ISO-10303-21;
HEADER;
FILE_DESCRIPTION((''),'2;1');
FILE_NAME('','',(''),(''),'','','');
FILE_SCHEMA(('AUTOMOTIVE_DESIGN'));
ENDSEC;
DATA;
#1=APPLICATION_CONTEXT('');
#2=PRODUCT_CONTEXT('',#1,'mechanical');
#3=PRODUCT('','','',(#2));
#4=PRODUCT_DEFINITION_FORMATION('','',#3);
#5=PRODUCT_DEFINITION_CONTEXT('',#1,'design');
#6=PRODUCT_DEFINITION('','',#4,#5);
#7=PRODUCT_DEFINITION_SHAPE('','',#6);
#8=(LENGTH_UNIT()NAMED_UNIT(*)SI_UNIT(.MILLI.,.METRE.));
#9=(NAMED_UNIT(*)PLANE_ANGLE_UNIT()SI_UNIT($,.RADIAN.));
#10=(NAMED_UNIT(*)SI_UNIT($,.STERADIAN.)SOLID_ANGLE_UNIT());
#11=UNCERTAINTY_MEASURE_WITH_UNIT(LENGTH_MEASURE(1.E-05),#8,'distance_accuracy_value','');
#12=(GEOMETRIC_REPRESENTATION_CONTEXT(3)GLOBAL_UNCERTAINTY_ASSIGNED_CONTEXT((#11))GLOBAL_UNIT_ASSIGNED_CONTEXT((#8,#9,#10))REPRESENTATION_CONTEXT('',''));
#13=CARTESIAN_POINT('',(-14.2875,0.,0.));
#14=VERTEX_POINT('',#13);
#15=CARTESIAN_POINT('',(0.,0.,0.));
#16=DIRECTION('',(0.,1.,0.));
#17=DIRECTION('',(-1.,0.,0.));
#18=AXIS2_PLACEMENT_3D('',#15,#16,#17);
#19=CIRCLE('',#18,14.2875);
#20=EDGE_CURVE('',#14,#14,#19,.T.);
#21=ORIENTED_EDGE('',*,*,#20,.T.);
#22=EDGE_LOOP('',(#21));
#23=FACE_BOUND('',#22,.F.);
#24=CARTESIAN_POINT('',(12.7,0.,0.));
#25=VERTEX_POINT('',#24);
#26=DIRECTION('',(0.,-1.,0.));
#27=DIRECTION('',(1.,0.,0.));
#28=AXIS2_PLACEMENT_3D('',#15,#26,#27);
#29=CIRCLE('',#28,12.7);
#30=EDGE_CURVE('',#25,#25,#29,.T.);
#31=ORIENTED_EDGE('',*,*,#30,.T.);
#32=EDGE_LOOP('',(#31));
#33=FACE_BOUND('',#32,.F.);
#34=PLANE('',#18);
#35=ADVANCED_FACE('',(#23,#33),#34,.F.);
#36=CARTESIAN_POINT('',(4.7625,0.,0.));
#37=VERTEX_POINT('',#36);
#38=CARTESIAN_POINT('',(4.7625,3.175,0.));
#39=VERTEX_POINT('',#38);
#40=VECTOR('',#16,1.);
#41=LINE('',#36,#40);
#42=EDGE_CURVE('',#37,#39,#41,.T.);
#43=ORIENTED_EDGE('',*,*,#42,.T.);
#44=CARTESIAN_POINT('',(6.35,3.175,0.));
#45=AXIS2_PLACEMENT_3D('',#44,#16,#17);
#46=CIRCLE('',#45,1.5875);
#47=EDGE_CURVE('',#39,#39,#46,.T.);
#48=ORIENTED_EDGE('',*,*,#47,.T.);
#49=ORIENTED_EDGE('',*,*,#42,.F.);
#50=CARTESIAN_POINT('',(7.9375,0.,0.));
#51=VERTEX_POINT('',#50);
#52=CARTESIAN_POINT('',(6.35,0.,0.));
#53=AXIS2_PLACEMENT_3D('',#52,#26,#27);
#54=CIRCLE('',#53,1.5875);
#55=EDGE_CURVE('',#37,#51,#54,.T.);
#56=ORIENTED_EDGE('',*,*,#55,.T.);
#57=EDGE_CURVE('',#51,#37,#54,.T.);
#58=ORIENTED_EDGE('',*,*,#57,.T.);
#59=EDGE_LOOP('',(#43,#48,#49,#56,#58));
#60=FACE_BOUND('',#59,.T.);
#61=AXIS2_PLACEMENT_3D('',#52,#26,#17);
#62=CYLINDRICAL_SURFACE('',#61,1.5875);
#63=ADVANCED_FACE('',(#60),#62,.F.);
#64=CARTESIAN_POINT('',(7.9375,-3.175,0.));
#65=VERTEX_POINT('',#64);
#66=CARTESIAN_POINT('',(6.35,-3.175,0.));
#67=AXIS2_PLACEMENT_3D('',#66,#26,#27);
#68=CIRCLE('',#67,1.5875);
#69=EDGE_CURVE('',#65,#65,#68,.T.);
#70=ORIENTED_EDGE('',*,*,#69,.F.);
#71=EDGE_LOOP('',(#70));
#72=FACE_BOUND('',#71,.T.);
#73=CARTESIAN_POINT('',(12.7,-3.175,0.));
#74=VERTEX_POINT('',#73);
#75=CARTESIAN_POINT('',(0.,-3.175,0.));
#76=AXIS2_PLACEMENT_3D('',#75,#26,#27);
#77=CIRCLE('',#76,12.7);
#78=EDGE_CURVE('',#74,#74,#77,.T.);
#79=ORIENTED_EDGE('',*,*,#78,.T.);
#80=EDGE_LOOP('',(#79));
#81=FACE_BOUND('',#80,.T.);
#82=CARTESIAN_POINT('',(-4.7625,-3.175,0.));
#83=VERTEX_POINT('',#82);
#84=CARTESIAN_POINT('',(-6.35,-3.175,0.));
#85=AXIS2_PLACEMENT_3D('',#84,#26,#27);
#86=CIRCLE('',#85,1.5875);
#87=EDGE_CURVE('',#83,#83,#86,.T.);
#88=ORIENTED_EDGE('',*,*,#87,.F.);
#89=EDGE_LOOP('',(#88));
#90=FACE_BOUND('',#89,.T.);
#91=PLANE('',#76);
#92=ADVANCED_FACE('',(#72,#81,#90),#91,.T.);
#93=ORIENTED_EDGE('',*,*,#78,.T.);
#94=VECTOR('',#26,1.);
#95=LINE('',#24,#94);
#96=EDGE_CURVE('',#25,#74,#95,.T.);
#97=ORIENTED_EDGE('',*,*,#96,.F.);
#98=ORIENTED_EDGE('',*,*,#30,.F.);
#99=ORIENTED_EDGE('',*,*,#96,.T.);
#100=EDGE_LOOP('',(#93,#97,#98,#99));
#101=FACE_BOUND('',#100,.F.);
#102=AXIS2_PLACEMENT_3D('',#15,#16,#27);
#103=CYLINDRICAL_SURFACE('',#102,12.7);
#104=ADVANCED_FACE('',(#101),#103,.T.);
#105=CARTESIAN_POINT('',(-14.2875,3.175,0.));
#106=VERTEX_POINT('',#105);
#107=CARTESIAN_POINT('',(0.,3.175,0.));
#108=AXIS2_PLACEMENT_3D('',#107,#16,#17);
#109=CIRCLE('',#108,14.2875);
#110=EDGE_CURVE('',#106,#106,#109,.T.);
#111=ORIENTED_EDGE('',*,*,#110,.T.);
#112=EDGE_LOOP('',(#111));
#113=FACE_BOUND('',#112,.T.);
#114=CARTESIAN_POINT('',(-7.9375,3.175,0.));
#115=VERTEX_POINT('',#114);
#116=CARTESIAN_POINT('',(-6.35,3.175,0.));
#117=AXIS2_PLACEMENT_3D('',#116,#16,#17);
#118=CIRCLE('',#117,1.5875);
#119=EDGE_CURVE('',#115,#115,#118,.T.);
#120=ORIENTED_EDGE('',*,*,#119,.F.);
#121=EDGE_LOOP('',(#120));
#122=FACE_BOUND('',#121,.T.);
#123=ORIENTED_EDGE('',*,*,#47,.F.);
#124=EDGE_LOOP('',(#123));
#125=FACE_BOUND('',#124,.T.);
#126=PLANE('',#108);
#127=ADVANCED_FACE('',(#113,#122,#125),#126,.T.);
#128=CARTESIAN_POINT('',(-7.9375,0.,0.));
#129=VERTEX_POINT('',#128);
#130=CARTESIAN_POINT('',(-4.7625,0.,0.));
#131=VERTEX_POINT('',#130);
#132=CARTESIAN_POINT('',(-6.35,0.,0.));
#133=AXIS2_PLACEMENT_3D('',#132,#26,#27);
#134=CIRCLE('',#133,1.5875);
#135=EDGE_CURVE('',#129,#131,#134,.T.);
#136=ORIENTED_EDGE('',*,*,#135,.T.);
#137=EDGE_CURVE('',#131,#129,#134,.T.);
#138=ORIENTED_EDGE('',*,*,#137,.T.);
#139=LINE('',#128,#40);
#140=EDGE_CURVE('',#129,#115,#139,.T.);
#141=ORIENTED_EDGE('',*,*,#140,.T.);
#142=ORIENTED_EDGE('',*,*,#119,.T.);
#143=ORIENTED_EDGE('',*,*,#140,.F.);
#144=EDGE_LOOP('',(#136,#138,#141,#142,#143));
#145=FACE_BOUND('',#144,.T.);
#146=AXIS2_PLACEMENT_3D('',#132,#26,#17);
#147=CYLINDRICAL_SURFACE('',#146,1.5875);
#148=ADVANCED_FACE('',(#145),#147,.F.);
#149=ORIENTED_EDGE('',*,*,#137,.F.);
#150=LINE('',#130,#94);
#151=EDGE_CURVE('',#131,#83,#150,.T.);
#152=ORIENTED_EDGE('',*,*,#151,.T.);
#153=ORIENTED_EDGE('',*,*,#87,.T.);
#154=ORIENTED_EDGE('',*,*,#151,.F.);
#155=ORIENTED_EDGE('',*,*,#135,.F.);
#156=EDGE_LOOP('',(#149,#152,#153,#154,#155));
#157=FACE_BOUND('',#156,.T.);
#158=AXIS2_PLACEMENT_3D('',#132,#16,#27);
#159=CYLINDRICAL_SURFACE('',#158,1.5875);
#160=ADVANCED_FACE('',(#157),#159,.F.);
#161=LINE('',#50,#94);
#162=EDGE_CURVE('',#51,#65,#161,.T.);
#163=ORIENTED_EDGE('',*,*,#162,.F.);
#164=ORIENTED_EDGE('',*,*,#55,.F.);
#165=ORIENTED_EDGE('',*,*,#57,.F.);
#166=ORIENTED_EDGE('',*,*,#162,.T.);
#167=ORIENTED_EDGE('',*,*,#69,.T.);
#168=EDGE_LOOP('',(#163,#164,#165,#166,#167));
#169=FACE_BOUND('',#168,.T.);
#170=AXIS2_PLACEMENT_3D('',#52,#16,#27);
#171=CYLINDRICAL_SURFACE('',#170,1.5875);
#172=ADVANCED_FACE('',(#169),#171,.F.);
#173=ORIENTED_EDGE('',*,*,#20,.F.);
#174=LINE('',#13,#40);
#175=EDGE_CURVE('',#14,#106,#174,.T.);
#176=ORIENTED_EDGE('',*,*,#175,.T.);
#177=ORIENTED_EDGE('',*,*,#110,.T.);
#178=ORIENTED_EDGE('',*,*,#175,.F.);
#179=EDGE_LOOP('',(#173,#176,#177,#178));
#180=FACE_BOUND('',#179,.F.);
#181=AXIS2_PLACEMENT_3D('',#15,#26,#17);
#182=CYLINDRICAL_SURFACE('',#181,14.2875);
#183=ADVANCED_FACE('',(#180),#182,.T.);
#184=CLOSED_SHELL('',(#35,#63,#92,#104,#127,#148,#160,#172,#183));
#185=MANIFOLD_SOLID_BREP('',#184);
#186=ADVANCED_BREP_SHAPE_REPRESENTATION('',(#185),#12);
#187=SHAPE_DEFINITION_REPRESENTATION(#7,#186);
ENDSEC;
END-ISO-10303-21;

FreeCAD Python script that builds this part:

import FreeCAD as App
import Part
import Sketcher
from FreeCAD import Vector
Q = App.Units.Quantity

doc = App.newDocument("Part")
params = doc.addObject("Spreadsheet::Sheet", "Params")
for row, (alias, value) in enumerate([
    ("sketch1_diameter", "1 in"),
    ("sketch1_diameter2", "0.125 in"),
    ("pad1_length", "0.125 in"),
    ("sketch2_diameter", "1.125 in"),
    ("sketch2_diameter2", "0.125 in"),
    ("pad2_length", "0.125 in"),
], start=1):
    params.set(f"A{row}", alias)
    params.set(f"B{row}", "=" + value)
    params.setAlias(f"B{row}", alias)

body = doc.addObject("PartDesign::Body", "Body")

sketch1 = body.newObject("Sketcher::SketchObject", "Sketch")
sketch1.AttachmentSupport = (doc.getObject("XZ_Plane"), [""])
sketch1.MapMode = "FlatFace"
sketch1.addGeometry(Part.Circle(Vector(0, 0, 0), Vector(0, 0, 1), 12.7), False)
sketch1.addGeometry(Part.Circle(Vector(-6.3, 0, 0), Vector(0, 0, 1), 1.6), False)
sketch1.addGeometry(Part.Circle(Vector(6.3, 0, 0), Vector(0, 0, 1), 1.6), False)
sketch1.addConstraint(Sketcher.Constraint("Coincident", 0, 3, -1, 1))
sketch1.addConstraint(Sketcher.Constraint("Equal", 1, 2))
sketch1.addConstraint(Sketcher.Constraint("Symmetric", 1, 3, 2, 3, -1, 1))
sketch1.addConstraint(Sketcher.Constraint("PointOnObject", 1, 3, -1))
sketch1.addConstraint(Sketcher.Constraint("Diameter", 0, Q("1 in")))
sketch1.addConstraint(Sketcher.Constraint("Diameter", 1, Q("0.125 in")))
sketch1.addConstraint(Sketcher.Constraint("DistanceX", 1, 3, 2, 3, Q("0.5 in")))
sketch1.setExpression("Constraints[4]", "Params.sketch1_diameter")
sketch1.setExpression("Constraints[5]", "Params.sketch1_diameter2")
pad1 = body.newObject("PartDesign::Pad", "Pad")
pad1.Profile = sketch1
pad1.setExpression("Length", "Params.pad1_length")

sketch2 = body.newObject("Sketcher::SketchObject", "Sketch001")
sketch2.AttachmentSupport = (doc.getObject("XZ_Plane"), [""])
sketch2.MapMode = "FlatFace"
sketch2.addGeometry(Part.Circle(Vector(0, 0, 0), Vector(0, 0, 1), 14.3), False)
sketch2.addGeometry(Part.Circle(Vector(6.3, 0, 0), Vector(0, 0, 1), 1.6), False)
sketch2.addGeometry(Part.Circle(Vector(-6.3, 0, 0), Vector(0, 0, 1), 1.6), False)
sketch2.addConstraint(Sketcher.Constraint("Coincident", 0, 3, -1, 1))
sketch2.addConstraint(Sketcher.Constraint("Equal", 1, 2))
sketch2.addConstraint(Sketcher.Constraint("Symmetric", 1, 3, 2, 3, -1, 1))
sketch2.addConstraint(Sketcher.Constraint("PointOnObject", 1, 3, -1))
sketch2.addConstraint(Sketcher.Constraint("Diameter", 0, Q("1.125 in")))
sketch2.addConstraint(Sketcher.Constraint("Diameter", 1, Q("0.125 in")))
sketch2.addConstraint(Sketcher.Constraint("DistanceX", 2, 3, 1, 3, Q("0.5 in")))
sketch2.setExpression("Constraints[4]", "Params.sketch2_diameter")
sketch2.setExpression("Constraints[5]", "Params.sketch2_diameter2")
pad2 = body.newObject("PartDesign::Pad", "Pad001")
pad2.Profile = sketch2
pad2.setExpression("Length", "Params.pad2_length")
pad2.Reversed = True

doc.recompute()
